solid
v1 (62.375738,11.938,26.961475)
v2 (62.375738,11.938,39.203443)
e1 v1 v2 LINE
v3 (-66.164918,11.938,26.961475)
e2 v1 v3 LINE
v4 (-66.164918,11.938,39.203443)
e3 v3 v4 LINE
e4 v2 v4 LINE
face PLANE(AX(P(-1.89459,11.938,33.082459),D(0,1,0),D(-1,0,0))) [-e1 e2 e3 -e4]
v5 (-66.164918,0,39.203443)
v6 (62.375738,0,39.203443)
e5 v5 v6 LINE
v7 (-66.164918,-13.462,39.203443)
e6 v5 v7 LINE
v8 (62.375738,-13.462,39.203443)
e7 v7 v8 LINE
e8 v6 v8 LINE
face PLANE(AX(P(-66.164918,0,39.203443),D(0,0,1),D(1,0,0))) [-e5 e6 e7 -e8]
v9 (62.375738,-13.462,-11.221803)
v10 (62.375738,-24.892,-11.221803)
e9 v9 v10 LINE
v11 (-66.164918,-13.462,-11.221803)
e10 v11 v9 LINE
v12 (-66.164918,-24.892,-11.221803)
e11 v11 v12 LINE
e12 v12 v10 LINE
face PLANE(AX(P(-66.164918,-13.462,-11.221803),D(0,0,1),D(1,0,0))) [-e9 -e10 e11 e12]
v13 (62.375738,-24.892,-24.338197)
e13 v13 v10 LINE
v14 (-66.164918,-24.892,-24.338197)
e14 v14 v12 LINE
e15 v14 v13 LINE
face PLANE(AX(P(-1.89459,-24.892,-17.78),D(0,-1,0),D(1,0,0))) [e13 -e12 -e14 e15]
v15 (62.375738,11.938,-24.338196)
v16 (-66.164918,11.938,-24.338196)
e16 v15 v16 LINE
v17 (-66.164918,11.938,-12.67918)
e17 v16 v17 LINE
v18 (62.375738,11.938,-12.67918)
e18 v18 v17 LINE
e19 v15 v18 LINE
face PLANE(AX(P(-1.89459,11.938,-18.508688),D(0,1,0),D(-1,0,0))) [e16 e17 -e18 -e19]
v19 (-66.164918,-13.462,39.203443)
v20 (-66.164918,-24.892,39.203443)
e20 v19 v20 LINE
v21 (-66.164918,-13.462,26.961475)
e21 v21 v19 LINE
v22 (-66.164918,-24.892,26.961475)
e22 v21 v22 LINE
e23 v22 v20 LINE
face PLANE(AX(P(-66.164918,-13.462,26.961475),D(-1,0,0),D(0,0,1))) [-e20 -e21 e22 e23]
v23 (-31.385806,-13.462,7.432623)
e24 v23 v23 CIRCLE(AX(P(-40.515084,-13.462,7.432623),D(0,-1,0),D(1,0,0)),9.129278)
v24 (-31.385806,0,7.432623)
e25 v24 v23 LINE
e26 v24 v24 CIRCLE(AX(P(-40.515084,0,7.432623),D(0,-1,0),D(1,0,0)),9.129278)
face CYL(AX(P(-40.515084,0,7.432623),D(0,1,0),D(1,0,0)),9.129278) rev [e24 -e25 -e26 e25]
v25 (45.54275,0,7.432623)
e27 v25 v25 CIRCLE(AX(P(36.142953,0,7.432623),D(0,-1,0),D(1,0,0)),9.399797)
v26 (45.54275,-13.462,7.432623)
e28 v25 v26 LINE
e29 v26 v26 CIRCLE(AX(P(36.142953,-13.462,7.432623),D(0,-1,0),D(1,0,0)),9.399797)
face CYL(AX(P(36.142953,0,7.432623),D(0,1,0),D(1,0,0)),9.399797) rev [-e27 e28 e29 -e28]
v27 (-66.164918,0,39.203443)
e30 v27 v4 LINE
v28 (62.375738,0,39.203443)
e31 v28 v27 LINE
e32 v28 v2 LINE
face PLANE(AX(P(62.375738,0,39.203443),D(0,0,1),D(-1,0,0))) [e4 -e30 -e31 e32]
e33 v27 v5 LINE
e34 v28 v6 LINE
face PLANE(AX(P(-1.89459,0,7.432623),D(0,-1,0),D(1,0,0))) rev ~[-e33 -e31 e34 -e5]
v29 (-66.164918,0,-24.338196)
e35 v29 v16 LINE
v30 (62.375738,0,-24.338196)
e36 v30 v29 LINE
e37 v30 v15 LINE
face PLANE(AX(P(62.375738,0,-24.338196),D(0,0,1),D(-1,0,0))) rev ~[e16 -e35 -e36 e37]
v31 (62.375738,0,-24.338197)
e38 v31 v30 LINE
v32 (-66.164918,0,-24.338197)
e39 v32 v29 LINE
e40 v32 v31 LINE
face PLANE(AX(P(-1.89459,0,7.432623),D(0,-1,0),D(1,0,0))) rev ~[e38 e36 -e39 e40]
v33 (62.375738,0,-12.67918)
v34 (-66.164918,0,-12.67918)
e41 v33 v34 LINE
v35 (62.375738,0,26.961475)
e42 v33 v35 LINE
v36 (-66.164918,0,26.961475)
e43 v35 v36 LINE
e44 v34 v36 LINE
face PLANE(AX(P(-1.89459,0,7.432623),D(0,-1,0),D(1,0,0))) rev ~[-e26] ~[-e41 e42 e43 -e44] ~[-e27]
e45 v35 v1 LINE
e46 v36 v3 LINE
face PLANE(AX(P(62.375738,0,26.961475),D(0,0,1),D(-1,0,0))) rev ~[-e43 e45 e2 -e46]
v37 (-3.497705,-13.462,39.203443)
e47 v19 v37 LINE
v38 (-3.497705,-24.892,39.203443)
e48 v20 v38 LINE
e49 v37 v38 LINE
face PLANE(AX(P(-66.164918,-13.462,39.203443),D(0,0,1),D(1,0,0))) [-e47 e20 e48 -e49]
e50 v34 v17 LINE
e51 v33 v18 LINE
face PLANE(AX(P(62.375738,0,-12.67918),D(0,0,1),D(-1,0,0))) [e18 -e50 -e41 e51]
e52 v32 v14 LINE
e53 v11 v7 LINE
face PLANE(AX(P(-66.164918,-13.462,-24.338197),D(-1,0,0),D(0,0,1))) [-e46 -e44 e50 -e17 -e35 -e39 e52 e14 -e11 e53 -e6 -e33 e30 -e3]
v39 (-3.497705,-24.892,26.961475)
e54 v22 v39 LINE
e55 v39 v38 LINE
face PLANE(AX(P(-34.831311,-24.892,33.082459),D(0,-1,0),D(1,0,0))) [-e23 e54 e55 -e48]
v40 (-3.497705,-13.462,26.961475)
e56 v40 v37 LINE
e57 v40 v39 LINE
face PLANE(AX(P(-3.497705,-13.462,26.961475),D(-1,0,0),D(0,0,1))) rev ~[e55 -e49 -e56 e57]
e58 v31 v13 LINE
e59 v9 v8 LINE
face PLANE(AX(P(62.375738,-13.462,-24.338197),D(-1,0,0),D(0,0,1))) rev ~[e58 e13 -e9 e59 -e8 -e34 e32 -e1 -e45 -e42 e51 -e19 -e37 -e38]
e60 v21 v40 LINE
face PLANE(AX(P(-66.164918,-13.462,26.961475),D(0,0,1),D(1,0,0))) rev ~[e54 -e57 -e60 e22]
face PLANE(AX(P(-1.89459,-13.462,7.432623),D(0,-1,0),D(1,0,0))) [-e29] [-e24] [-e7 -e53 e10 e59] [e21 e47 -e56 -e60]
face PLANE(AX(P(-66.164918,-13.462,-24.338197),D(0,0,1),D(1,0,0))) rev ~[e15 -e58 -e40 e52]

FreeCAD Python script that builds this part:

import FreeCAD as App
import Part
import Sketcher
from FreeCAD import Vector


def add_polygon(sketch, points):
    """Adds a closed chain of lines whose ends are joined by coincident constraints."""
    first, n = sketch.GeometryCount, len(points)
    for a, b in zip(points, points[1:] + points[:1]):
        sketch.addGeometry(Part.LineSegment(App.Vector(*a, 0), App.Vector(*b, 0)), False)
    for i in range(n):
        sketch.addConstraint(Sketcher.Constraint("Coincident", first + i, 2, first + (i + 1) % n, 1))

doc = App.newDocument("Part")
params = doc.addObject("Spreadsheet::Sheet", "Params")
for row, (alias, value) in enumerate([
    ("pad1_length", "0.53 in"),
    ("pad2_length", "0.45 in"),
    ("pad3_length", "0.47 in"),
], start=1):
    params.set(f"A{row}", alias)
    params.set(f"B{row}", "=" + value)
    params.setAlias(f"B{row}", alias)

body = doc.addObject("PartDesign::Body", "Body")

sketch1 = body.newObject("Sketcher::SketchObject", "Sketch")
sketch1.AttachmentSupport = (doc.getObject("XZ_Plane"), [""])
sketch1.MapMode = "FlatFace"
add_polygon(sketch1, [(-66.164918, 39.203443), (-66.164918, -24.338197), (62.375738, -24.338197), (62.375738, 39.203443)])
sketch1.addGeometry(Part.Circle(Vector(-40.515084, 7.432623, 0), Vector(0, 0, 1), 9.129278), False)
sketch1.addGeometry(Part.Circle(Vector(36.142953, 7.432623, 0), Vector(0, 0, 1), 9.399797), False)
sketch1.addConstraint(Sketcher.Constraint("Vertical", 0))
sketch1.addConstraint(Sketcher.Constraint("Horizontal", 1))
sketch1.addConstraint(Sketcher.Constraint("Vertical", 2))
sketch1.addConstraint(Sketcher.Constraint("Horizontal", 3))
sketch1.addConstraint(Sketcher.Constraint("Horizontal", 4, 3, 5, 3))
sketch1.addConstraint(Sketcher.Constraint("Diameter", 4, 18.258556))
sketch1.addConstraint(Sketcher.Constraint("Diameter", 5, 18.799594))
sketch1.addConstraint(Sketcher.Constraint("DistanceY", 0, 2, 0, 1, 63.54164))
sketch1.addConstraint(Sketcher.Constraint("DistanceX", 1, 1, 1, 2, 128.540657))
sketch1.addConstraint(Sketcher.Constraint("DistanceX", 0, 2, -1, 1, 66.164918))
sketch1.addConstraint(Sketcher.Constraint("DistanceY", 0, 2, 4, 3, 31.77082))
sketch1.addConstraint(Sketcher.Constraint("DistanceX", 0, 2, 5, 3, 102.307872))
sketch1.addConstraint(Sketcher.Constraint("DistanceX", 4, 3, -1, 1, 40.515084))
sketch1.addConstraint(Sketcher.Constraint("DistanceY", -1, 1, 4, 3, 7.432623))
pad1 = body.newObject("PartDesign::Pad", "Pad")
pad1.Profile = sketch1
pad1.setExpression("Length", "Params.pad1_length")

sketch2 = body.newObject("Sketcher::SketchObject", "Sketch001")
sketch2.AttachmentSupport = (doc.getObject("XZ_Plane"), [""])
sketch2.MapMode = "FlatFace"
sketch2.AttachmentOffset = App.Placement(Vector(0, 0, 0.53 * 25.4), App.Rotation())
add_polygon(sketch2, [(-66.164918, 39.203443), (-66.164918, 26.961475), (-3.497705, 26.961475), (-3.497705, 39.203443)])
add_polygon(sketch2, [(-66.164918, -11.221803), (-66.164918, -24.338197), (62.375738, -24.338197), (62.375738, -11.221803)])
sketch2.addConstraint(Sketcher.Constraint("Vertical", 0))
sketch2.addConstraint(Sketcher.Constraint("Horizontal", 1))
sketch2.addConstraint(Sketcher.Constraint("Vertical", 2))
sketch2.addConstraint(Sketcher.Constraint("Horizontal", 3))
sketch2.addConstraint(Sketcher.Constraint("Vertical", 4))
sketch2.addConstraint(Sketcher.Constraint("Horizontal", 5))
sketch2.addConstraint(Sketcher.Constraint("Vertical", 6))
sketch2.addConstraint(Sketcher.Constraint("Horizontal", 7))
sketch2.addConstraint(Sketcher.Constraint("Vertical", 3, 2, 4, 2))
sketch2.addConstraint(Sketcher.Constraint("DistanceX", 1, 1, 1, 2, 62.667213))
sketch2.addConstraint(Sketcher.Constraint("DistanceX", 5, 1, 5, 2, 128.540657))
sketch2.addConstraint(Sketcher.Constraint("DistanceY", 0, 2, 0, 1, 12.241967))
sketch2.addConstraint(Sketcher.Constraint("DistanceY", 4, 2, 4, 1, 13.116394))
sketch2.addConstraint(Sketcher.Constraint("DistanceX", 4, 2, -1, 1, 66.164918))
sketch2.addConstraint(Sketcher.Constraint("DistanceY", 4, 2, 3, 2, 63.54164))
sketch2.addConstraint(Sketcher.Constraint("DistanceY", -1, 1, 0, 2, 26.961475))
pad2 = body.newObject("PartDesign::Pad", "Pad001")
pad2.Profile = sketch2
pad2.setExpression("Length", "Params.pad2_length")

sketch3 = body.newObject("Sketcher::SketchObject", "Sketch002")
sketch3.AttachmentSupport = (doc.getObject("XZ_Plane"), [""])
sketch3.MapMode = "FlatFace"
add_polygon(sketch3, [(62.375738, 39.203443), (62.375738, 26.961475), (-66.164918, 26.961475), (-66.164918, 39.203443)])
add_polygon(sketch3, [(62.375738, -12.67918), (62.375738, -24.338196), (-66.164918, -24.338196), (-66.164918, -12.67918)])
sketch3.addConstraint(Sketcher.Constraint("Vertical", 0))
sketch3.addConstraint(Sketcher.Constraint("Horizontal", 1))
sketch3.addConstraint(Sketcher.Constraint("Vertical", 2))
sketch3.addConstraint(Sketcher.Constraint("Horizontal", 3))
sketch3.addConstraint(Sketcher.Constraint("Vertical", 4))
sketch3.addConstraint(Sketcher.Constraint("Horizontal", 5))
sketch3.addConstraint(Sketcher.Constraint("Vertical", 6))
sketch3.addConstraint(Sketcher.Constraint("Horizontal", 7))
sketch3.addConstraint(Sketcher.Constraint("Vertical", 3, 2, 4, 2))
sketch3.addConstraint(Sketcher.Constraint("Vertical", 2, 2, 5, 2))
sketch3.addConstraint(Sketcher.Constraint("DistanceX", 1, 2, 1, 1, 128.540657))
sketch3.addConstraint(Sketcher.Constraint("DistanceY", 0, 2, 0, 1, 12.241967))
sketch3.addConstraint(Sketcher.Constraint("DistanceY", 4, 2, 4, 1, 11.659017))
sketch3.addConstraint(Sketcher.Constraint("DistanceX", -1, 1, 0, 2, 62.375738))
sketch3.addConstraint(Sketcher.Constraint("DistanceY", 6, 2, -1, 1, 12.67918))
sketch3.addConstraint(Sketcher.Constraint("DistanceY", 4, 2, 3, 2, 63.541639))
pad3 = body.newObject("PartDesign::Pad", "Pad002")
pad3.Profile = sketch3
pad3.setExpression("Length", "Params.pad3_length")
pad3.Reversed = True

doc.recompute()
